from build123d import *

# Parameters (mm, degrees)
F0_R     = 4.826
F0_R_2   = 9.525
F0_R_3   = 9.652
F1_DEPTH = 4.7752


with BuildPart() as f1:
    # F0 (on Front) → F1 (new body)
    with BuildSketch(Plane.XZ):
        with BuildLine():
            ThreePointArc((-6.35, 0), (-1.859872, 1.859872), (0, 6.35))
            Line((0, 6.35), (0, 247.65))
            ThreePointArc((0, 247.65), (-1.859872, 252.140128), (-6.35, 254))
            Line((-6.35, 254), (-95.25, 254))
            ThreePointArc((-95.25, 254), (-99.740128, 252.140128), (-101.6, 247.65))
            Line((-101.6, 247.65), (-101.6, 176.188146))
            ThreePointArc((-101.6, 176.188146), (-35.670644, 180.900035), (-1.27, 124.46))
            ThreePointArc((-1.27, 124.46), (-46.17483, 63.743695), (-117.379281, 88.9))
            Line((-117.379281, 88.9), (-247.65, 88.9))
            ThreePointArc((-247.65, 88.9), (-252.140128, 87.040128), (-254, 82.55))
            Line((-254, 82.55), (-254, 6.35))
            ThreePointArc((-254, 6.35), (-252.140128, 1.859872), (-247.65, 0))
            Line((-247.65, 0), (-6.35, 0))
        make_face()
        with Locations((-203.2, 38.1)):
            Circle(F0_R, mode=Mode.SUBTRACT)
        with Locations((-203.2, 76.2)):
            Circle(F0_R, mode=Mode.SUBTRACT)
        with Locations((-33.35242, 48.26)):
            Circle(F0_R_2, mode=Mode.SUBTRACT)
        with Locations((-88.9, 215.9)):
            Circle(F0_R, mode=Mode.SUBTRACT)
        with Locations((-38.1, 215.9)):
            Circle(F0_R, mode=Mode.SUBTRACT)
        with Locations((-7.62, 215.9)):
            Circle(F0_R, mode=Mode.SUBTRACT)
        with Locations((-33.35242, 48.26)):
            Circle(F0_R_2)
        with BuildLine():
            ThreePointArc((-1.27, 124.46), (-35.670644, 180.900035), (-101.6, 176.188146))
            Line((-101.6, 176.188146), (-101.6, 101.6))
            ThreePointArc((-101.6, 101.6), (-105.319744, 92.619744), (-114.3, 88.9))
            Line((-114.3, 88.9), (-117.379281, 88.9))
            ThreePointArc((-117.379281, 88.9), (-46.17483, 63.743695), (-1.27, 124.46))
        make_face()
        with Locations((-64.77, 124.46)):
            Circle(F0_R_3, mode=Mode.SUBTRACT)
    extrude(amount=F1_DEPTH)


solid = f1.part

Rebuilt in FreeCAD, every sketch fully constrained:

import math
import FreeCAD as App
import Part
import Sketcher
Q = App.Units.Quantity

doc = App.newDocument("Part")
params = doc.addObject("Spreadsheet::Sheet", "Params")
for row, (alias, value) in enumerate([
    ("sketch1_radius", "0.5 in"),
    ("sketch1_diameter", "0.38 in"),
    ("sketch1_diameter2", "0.76 in"),
    ("sketch1_height", "3 in"),
    ("sketch1_radius2", "0.25 in"),
    ("pad1_length", "0.188 in"),
], start=1):
    params.set(f"A{row}", alias)
    params.set(f"B{row}", "=" + value)
    params.setAlias(f"B{row}", alias)

body = doc.addObject("PartDesign::Body", "Body")

# Sketch on XZ plane
sketch1 = doc.addObject("Sketcher::SketchObject", "Sketch")
body.addObject(sketch1)
sketch1.AttachmentSupport = (doc.XZ_Plane, [""])
sketch1.MapMode = "FlatFace"
sketch1.addGeometry(Part.ArcOfCircle(Part.Circle(App.Vector(-6.4, 6.4, 0), App.Vector(0, 0, 1), 6.4), math.radians(-90), math.radians(0)), False)
sketch1.addGeometry(Part.LineSegment(App.Vector(0, 6.3, 0), App.Vector(0, 247.7, 0)), False)
sketch1.addGeometry(Part.ArcOfCircle(Part.Circle(App.Vector(-6.4, 247.6, 0), App.Vector(0, 0, 1), 6.4), math.radians(0), math.radians(90)), False)
sketch1.addGeometry(Part.LineSegment(App.Vector(-6.3, 254, 0), App.Vector(-95.2, 254, 0)), False)
sketch1.addGeometry(Part.ArcOfCircle(Part.Circle(App.Vector(-95.2, 247.6, 0), App.Vector(0, 0, 1), 6.4), math.radians(90), math.radians(180)), False)
sketch1.addGeometry(Part.LineSegment(App.Vector(-101.6, 247.7, 0), App.Vector(-101.6, 101.6, 0)), False)
sketch1.addGeometry(Part.ArcOfCircle(Part.Circle(App.Vector(-114.3, 101.6, 0), App.Vector(0, 0, 1), 12.7), math.radians(-90), math.radians(0)), False)
sketch1.addGeometry(Part.LineSegment(App.Vector(-114.3, 88.9, 0), App.Vector(-247.7, 88.9, 0)), False)
sketch1.addGeometry(Part.ArcOfCircle(Part.Circle(App.Vector(-247.6, 82.5, 0), App.Vector(0, 0, 1), 6.4), math.radians(90), math.radians(180)), False)
sketch1.addGeometry(Part.LineSegment(App.Vector(-254, 82.5, 0), App.Vector(-254, 6.3, 0)), False)
sketch1.addGeometry(Part.ArcOfCircle(Part.Circle(App.Vector(-247.6, 6.4, 0), App.Vector(0, 0, 1), 6.4), math.radians(-180), math.radians(-90)), False)
sketch1.addGeometry(Part.LineSegment(App.Vector(-247.7, 0, 0), App.Vector(-6.3, 0, 0)), False)
sketch1.addGeometry(Part.Circle(App.Vector(-203.2, 38.1, 0), App.Vector(0, 0, 1), 4.8), False)
sketch1.addGeometry(Part.Circle(App.Vector(-203.2, 76.2, 0), App.Vector(0, 0, 1), 4.8), False)
sketch1.addGeometry(Part.Circle(App.Vector(-64.8, 124.5, 0), App.Vector(0, 0, 1), 9.7), False)
sketch1.addGeometry(Part.Circle(App.Vector(-88.9, 215.9, 0), App.Vector(0, 0, 1), 4.8), False)
sketch1.addGeometry(Part.Circle(App.Vector(-38.1, 215.9, 0), App.Vector(0, 0, 1), 4.8), False)
sketch1.addGeometry(Part.Circle(App.Vector(-7.6, 215.9, 0), App.Vector(0, 0, 1), 4.8), False)
sketch1.addConstraint(Sketcher.Constraint("Tangent", 0, 2, 1, 1))
sketch1.addConstraint(Sketcher.Constraint("Tangent", 1, 2, 2, 1))
sketch1.addConstraint(Sketcher.Constraint("Tangent", 2, 2, 3, 1))
sketch1.addConstraint(Sketcher.Constraint("Tangent", 3, 2, 4, 1))
sketch1.addConstraint(Sketcher.Constraint("Tangent", 4, 2, 5, 1))
sketch1.addConstraint(Sketcher.Constraint("Tangent", 5, 2, 6, 2))
sketch1.addConstraint(Sketcher.Constraint("Tangent", 6, 1, 7, 1))
sketch1.addConstraint(Sketcher.Constraint("Tangent", 7, 2, 8, 1))
sketch1.addConstraint(Sketcher.Constraint("Tangent", 8, 2, 9, 1))
sketch1.addConstraint(Sketcher.Constraint("Tangent", 9, 2, 10, 1))
sketch1.addConstraint(Sketcher.Constraint("Tangent", 10, 2, 11, 1))
sketch1.addConstraint(Sketcher.Constraint("Tangent", 11, 2, 0, 1))
sketch1.addConstraint(Sketcher.Constraint("Vertical", 1))
sketch1.addConstraint(Sketcher.Constraint("Horizontal", 3))
sketch1.addConstraint(Sketcher.Constraint("Vertical", 5))
sketch1.addConstraint(Sketcher.Constraint("Horizontal", 7))
sketch1.addConstraint(Sketcher.Constraint("Vertical", 9))
sketch1.addConstraint(Sketcher.Constraint("Horizontal", 11))
sketch1.addConstraint(Sketcher.Constraint("Equal", 0, 2))
sketch1.addConstraint(Sketcher.Constraint("Equal", 2, 4))
sketch1.addConstraint(Sketcher.Constraint("Equal", 4, 8))
sketch1.addConstraint(Sketcher.Constraint("Equal", 8, 10))
sketch1.addConstraint(Sketcher.Constraint("Equal", 12, 13))
sketch1.addConstraint(Sketcher.Constraint("Equal", 13, 15))
sketch1.addConstraint(Sketcher.Constraint("Equal", 15, 16))
sketch1.addConstraint(Sketcher.Constraint("Equal", 16, 17))
sketch1.addConstraint(Sketcher.Constraint("PointOnObject", 0, 2, -2))
sketch1.addConstraint(Sketcher.Constraint("PointOnObject", 10, 2, -1))
sketch1.addConstraint(Sketcher.Constraint("Horizontal", 15, 3, 16, 3))
sketch1.addConstraint(Sketcher.Constraint("Horizontal", 16, 3, 17, 3))
sketch1.addConstraint(Sketcher.Constraint("Vertical", 12, 3, 13, 3))
sketch1.addConstraint(Sketcher.Constraint("Equal", 11, 1))
sketch1.addConstraint(Sketcher.Constraint("Radius", 6, Q("0.5 in")))
sketch1.addConstraint(Sketcher.Constraint("Diameter", 12, Q("0.38 in")))
sketch1.addConstraint(Sketcher.Constraint("Diameter", 14, Q("0.76 in")))
sketch1.addConstraint(Sketcher.Constraint("DistanceY", 9, 2, 9, 1, Q("3 in")))
sketch1.addConstraint(Sketcher.Constraint("Radius", 0, Q("0.25 in")))
sketch1.addConstraint(Sketcher.Constraint("DistanceX", 3, 2, 3, 1, Q("3.5 in")))
sketch1.addConstraint(Sketcher.Constraint("DistanceX", 11, 1, 11, 2, Q("9.5 in")))
sketch1.addConstraint(Sketcher.Constraint("DistanceX", 12, 3, -1, 1, Q("8 in")))
sketch1.addConstraint(Sketcher.Constraint("DistanceY", -1, 1, 13, 3, Q("3 in")))
sketch1.addConstraint(Sketcher.Constraint("DistanceX", 6, 3, 15, 3, Q("1 in")))
sketch1.addConstraint(Sketcher.Constraint("DistanceX", 15, 3, 16, 3, Q("2 in")))
sketch1.addConstraint(Sketcher.Constraint("DistanceY", 12, 3, 6, 1, Q("2 in")))
sketch1.addConstraint(Sketcher.Constraint("DistanceY", -1, 1, 14, 3, Q("4.9 in")))
sketch1.addConstraint(Sketcher.Constraint("DistanceY", -1, 1, 15, 3, Q("8.5 in")))
sketch1.addConstraint(Sketcher.Constraint("DistanceX", 17, 3, -1, 1, Q("0.3 in")))
sketch1.addConstraint(Sketcher.Constraint("DistanceX", 4, 3, 14, 3, Q("1.2 in")))
sketch1.setExpression("Constraints[32]", "Params.sketch1_radius")
sketch1.setExpression("Constraints[33]", "Params.sketch1_diameter")
sketch1.setExpression("Constraints[34]", "Params.sketch1_diameter2")
sketch1.setExpression("Constraints[35]", "Params.sketch1_height")
sketch1.setExpression("Constraints[36]", "Params.sketch1_radius2")
pad1 = doc.addObject("PartDesign::Pad", "Pad")
body.addObject(pad1)
pad1.Profile = sketch1
pad1.setExpression("Length", "Params.pad1_length")

doc.recompute()
